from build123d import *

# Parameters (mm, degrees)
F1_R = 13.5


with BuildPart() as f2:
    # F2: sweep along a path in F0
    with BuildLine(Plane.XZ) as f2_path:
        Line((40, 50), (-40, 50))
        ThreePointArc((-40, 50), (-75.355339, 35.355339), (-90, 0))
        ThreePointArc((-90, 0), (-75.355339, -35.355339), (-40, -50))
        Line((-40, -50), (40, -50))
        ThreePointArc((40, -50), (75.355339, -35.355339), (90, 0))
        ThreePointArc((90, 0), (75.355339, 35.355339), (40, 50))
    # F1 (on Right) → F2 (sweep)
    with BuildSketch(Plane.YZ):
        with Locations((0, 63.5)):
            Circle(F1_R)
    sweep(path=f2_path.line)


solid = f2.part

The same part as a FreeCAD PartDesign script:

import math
import FreeCAD as App
import Part
import Sketcher
Q = App.Units.Quantity

doc = App.newDocument("Part")
body = doc.addObject("PartDesign::Body", "Body")

# Sketch on YZ plane
sketch1 = doc.addObject("Sketcher::SketchObject", "Sketch")
body.addObject(sketch1)
sketch1.AttachmentSupport = (doc.YZ_Plane, [""])
sketch1.MapMode = "FlatFace"
sketch1.addGeometry(Part.Circle(App.Vector(0, 64, 0), App.Vector(0, 0, 1), 14), False)
sketch1.addConstraint(Sketcher.Constraint("PointOnObject", 0, 3, -2))
sketch1.addConstraint(Sketcher.Constraint("Diameter", 0, Q("27 mm")))
sketch1.addConstraint(Sketcher.Constraint("DistanceY", -1, 1, 0, 3, Q("63.5 mm")))

# Sketch on XZ plane
sketch2 = doc.addObject("Sketcher::SketchObject", "Sketch001")
body.addObject(sketch2)
sketch2.AttachmentSupport = (doc.XZ_Plane, [""])
sketch2.MapMode = "FlatFace"
sketch2.addGeometry(Part.LineSegment(App.Vector(40, 50, 0), App.Vector(-40, 50, 0)), False)
sketch2.addGeometry(Part.ArcOfCircle(Part.Circle(App.Vector(-40, 0, 0), App.Vector(0, 0, 1), 50), math.radians(90), math.radians(180)), False)
sketch2.addGeometry(Part.ArcOfCircle(Part.Circle(App.Vector(-40, 0, 0), App.Vector(0, 0, 1), 50), math.radians(-180), math.radians(-90)), False)
sketch2.addGeometry(Part.LineSegment(App.Vector(-40, -50, 0), App.Vector(40, -50, 0)), False)
sketch2.addGeometry(Part.ArcOfCircle(Part.Circle(App.Vector(40, 0, 0), App.Vector(0, 0, 1), 50), math.radians(-90), math.radians(0)), False)
sketch2.addGeometry(Part.ArcOfCircle(Part.Circle(App.Vector(40, 0, 0), App.Vector(0, 0, 1), 50), math.radians(0), math.radians(90)), False)
sketch2.addConstraint(Sketcher.Constraint("Tangent", 0, 2, 1, 1))
sketch2.addConstraint(Sketcher.Constraint("Tangent", 1, 2, 2, 1))
sketch2.addConstraint(Sketcher.Constraint("Tangent", 2, 2, 3, 1))
sketch2.addConstraint(Sketcher.Constraint("Tangent", 3, 2, 4, 1))
sketch2.addConstraint(Sketcher.Constraint("Tangent", 4, 2, 5, 1))
sketch2.addConstraint(Sketcher.Constraint("Tangent", 5, 2, 0, 1))
sketch2.addConstraint(Sketcher.Constraint("Horizontal", 0))
sketch2.addConstraint(Sketcher.Constraint("Horizontal", 3))
sketch2.addConstraint(Sketcher.Constraint("Equal", 1, 2))
sketch2.addConstraint(Sketcher.Constraint("Equal", 2, 4))
sketch2.addConstraint(Sketcher.Constraint("Symmetric", 1, 3, 4, 3, -1, 1))
sketch2.addConstraint(Sketcher.Constraint("PointOnObject", 1, 2, -1))
sketch2.addConstraint(Sketcher.Constraint("PointOnObject", 4, 2, -1))
sketch2.addConstraint(Sketcher.Constraint("Radius", 1, Q("50 mm")))
sketch2.addConstraint(Sketcher.Constraint("DistanceX", 0, 2, 0, 1, Q("80 mm")))
doc.recompute()

additivepipe = doc.addObject("PartDesign::AdditivePipe", "AdditivePipe")
body.addObject(additivepipe)
additivepipe.Profile = sketch1
additivepipe.Spine = (sketch2, ["Edge1", "Edge2", "Edge3", "Edge4", "Edge5", "Edge6"])

doc.recompute()
